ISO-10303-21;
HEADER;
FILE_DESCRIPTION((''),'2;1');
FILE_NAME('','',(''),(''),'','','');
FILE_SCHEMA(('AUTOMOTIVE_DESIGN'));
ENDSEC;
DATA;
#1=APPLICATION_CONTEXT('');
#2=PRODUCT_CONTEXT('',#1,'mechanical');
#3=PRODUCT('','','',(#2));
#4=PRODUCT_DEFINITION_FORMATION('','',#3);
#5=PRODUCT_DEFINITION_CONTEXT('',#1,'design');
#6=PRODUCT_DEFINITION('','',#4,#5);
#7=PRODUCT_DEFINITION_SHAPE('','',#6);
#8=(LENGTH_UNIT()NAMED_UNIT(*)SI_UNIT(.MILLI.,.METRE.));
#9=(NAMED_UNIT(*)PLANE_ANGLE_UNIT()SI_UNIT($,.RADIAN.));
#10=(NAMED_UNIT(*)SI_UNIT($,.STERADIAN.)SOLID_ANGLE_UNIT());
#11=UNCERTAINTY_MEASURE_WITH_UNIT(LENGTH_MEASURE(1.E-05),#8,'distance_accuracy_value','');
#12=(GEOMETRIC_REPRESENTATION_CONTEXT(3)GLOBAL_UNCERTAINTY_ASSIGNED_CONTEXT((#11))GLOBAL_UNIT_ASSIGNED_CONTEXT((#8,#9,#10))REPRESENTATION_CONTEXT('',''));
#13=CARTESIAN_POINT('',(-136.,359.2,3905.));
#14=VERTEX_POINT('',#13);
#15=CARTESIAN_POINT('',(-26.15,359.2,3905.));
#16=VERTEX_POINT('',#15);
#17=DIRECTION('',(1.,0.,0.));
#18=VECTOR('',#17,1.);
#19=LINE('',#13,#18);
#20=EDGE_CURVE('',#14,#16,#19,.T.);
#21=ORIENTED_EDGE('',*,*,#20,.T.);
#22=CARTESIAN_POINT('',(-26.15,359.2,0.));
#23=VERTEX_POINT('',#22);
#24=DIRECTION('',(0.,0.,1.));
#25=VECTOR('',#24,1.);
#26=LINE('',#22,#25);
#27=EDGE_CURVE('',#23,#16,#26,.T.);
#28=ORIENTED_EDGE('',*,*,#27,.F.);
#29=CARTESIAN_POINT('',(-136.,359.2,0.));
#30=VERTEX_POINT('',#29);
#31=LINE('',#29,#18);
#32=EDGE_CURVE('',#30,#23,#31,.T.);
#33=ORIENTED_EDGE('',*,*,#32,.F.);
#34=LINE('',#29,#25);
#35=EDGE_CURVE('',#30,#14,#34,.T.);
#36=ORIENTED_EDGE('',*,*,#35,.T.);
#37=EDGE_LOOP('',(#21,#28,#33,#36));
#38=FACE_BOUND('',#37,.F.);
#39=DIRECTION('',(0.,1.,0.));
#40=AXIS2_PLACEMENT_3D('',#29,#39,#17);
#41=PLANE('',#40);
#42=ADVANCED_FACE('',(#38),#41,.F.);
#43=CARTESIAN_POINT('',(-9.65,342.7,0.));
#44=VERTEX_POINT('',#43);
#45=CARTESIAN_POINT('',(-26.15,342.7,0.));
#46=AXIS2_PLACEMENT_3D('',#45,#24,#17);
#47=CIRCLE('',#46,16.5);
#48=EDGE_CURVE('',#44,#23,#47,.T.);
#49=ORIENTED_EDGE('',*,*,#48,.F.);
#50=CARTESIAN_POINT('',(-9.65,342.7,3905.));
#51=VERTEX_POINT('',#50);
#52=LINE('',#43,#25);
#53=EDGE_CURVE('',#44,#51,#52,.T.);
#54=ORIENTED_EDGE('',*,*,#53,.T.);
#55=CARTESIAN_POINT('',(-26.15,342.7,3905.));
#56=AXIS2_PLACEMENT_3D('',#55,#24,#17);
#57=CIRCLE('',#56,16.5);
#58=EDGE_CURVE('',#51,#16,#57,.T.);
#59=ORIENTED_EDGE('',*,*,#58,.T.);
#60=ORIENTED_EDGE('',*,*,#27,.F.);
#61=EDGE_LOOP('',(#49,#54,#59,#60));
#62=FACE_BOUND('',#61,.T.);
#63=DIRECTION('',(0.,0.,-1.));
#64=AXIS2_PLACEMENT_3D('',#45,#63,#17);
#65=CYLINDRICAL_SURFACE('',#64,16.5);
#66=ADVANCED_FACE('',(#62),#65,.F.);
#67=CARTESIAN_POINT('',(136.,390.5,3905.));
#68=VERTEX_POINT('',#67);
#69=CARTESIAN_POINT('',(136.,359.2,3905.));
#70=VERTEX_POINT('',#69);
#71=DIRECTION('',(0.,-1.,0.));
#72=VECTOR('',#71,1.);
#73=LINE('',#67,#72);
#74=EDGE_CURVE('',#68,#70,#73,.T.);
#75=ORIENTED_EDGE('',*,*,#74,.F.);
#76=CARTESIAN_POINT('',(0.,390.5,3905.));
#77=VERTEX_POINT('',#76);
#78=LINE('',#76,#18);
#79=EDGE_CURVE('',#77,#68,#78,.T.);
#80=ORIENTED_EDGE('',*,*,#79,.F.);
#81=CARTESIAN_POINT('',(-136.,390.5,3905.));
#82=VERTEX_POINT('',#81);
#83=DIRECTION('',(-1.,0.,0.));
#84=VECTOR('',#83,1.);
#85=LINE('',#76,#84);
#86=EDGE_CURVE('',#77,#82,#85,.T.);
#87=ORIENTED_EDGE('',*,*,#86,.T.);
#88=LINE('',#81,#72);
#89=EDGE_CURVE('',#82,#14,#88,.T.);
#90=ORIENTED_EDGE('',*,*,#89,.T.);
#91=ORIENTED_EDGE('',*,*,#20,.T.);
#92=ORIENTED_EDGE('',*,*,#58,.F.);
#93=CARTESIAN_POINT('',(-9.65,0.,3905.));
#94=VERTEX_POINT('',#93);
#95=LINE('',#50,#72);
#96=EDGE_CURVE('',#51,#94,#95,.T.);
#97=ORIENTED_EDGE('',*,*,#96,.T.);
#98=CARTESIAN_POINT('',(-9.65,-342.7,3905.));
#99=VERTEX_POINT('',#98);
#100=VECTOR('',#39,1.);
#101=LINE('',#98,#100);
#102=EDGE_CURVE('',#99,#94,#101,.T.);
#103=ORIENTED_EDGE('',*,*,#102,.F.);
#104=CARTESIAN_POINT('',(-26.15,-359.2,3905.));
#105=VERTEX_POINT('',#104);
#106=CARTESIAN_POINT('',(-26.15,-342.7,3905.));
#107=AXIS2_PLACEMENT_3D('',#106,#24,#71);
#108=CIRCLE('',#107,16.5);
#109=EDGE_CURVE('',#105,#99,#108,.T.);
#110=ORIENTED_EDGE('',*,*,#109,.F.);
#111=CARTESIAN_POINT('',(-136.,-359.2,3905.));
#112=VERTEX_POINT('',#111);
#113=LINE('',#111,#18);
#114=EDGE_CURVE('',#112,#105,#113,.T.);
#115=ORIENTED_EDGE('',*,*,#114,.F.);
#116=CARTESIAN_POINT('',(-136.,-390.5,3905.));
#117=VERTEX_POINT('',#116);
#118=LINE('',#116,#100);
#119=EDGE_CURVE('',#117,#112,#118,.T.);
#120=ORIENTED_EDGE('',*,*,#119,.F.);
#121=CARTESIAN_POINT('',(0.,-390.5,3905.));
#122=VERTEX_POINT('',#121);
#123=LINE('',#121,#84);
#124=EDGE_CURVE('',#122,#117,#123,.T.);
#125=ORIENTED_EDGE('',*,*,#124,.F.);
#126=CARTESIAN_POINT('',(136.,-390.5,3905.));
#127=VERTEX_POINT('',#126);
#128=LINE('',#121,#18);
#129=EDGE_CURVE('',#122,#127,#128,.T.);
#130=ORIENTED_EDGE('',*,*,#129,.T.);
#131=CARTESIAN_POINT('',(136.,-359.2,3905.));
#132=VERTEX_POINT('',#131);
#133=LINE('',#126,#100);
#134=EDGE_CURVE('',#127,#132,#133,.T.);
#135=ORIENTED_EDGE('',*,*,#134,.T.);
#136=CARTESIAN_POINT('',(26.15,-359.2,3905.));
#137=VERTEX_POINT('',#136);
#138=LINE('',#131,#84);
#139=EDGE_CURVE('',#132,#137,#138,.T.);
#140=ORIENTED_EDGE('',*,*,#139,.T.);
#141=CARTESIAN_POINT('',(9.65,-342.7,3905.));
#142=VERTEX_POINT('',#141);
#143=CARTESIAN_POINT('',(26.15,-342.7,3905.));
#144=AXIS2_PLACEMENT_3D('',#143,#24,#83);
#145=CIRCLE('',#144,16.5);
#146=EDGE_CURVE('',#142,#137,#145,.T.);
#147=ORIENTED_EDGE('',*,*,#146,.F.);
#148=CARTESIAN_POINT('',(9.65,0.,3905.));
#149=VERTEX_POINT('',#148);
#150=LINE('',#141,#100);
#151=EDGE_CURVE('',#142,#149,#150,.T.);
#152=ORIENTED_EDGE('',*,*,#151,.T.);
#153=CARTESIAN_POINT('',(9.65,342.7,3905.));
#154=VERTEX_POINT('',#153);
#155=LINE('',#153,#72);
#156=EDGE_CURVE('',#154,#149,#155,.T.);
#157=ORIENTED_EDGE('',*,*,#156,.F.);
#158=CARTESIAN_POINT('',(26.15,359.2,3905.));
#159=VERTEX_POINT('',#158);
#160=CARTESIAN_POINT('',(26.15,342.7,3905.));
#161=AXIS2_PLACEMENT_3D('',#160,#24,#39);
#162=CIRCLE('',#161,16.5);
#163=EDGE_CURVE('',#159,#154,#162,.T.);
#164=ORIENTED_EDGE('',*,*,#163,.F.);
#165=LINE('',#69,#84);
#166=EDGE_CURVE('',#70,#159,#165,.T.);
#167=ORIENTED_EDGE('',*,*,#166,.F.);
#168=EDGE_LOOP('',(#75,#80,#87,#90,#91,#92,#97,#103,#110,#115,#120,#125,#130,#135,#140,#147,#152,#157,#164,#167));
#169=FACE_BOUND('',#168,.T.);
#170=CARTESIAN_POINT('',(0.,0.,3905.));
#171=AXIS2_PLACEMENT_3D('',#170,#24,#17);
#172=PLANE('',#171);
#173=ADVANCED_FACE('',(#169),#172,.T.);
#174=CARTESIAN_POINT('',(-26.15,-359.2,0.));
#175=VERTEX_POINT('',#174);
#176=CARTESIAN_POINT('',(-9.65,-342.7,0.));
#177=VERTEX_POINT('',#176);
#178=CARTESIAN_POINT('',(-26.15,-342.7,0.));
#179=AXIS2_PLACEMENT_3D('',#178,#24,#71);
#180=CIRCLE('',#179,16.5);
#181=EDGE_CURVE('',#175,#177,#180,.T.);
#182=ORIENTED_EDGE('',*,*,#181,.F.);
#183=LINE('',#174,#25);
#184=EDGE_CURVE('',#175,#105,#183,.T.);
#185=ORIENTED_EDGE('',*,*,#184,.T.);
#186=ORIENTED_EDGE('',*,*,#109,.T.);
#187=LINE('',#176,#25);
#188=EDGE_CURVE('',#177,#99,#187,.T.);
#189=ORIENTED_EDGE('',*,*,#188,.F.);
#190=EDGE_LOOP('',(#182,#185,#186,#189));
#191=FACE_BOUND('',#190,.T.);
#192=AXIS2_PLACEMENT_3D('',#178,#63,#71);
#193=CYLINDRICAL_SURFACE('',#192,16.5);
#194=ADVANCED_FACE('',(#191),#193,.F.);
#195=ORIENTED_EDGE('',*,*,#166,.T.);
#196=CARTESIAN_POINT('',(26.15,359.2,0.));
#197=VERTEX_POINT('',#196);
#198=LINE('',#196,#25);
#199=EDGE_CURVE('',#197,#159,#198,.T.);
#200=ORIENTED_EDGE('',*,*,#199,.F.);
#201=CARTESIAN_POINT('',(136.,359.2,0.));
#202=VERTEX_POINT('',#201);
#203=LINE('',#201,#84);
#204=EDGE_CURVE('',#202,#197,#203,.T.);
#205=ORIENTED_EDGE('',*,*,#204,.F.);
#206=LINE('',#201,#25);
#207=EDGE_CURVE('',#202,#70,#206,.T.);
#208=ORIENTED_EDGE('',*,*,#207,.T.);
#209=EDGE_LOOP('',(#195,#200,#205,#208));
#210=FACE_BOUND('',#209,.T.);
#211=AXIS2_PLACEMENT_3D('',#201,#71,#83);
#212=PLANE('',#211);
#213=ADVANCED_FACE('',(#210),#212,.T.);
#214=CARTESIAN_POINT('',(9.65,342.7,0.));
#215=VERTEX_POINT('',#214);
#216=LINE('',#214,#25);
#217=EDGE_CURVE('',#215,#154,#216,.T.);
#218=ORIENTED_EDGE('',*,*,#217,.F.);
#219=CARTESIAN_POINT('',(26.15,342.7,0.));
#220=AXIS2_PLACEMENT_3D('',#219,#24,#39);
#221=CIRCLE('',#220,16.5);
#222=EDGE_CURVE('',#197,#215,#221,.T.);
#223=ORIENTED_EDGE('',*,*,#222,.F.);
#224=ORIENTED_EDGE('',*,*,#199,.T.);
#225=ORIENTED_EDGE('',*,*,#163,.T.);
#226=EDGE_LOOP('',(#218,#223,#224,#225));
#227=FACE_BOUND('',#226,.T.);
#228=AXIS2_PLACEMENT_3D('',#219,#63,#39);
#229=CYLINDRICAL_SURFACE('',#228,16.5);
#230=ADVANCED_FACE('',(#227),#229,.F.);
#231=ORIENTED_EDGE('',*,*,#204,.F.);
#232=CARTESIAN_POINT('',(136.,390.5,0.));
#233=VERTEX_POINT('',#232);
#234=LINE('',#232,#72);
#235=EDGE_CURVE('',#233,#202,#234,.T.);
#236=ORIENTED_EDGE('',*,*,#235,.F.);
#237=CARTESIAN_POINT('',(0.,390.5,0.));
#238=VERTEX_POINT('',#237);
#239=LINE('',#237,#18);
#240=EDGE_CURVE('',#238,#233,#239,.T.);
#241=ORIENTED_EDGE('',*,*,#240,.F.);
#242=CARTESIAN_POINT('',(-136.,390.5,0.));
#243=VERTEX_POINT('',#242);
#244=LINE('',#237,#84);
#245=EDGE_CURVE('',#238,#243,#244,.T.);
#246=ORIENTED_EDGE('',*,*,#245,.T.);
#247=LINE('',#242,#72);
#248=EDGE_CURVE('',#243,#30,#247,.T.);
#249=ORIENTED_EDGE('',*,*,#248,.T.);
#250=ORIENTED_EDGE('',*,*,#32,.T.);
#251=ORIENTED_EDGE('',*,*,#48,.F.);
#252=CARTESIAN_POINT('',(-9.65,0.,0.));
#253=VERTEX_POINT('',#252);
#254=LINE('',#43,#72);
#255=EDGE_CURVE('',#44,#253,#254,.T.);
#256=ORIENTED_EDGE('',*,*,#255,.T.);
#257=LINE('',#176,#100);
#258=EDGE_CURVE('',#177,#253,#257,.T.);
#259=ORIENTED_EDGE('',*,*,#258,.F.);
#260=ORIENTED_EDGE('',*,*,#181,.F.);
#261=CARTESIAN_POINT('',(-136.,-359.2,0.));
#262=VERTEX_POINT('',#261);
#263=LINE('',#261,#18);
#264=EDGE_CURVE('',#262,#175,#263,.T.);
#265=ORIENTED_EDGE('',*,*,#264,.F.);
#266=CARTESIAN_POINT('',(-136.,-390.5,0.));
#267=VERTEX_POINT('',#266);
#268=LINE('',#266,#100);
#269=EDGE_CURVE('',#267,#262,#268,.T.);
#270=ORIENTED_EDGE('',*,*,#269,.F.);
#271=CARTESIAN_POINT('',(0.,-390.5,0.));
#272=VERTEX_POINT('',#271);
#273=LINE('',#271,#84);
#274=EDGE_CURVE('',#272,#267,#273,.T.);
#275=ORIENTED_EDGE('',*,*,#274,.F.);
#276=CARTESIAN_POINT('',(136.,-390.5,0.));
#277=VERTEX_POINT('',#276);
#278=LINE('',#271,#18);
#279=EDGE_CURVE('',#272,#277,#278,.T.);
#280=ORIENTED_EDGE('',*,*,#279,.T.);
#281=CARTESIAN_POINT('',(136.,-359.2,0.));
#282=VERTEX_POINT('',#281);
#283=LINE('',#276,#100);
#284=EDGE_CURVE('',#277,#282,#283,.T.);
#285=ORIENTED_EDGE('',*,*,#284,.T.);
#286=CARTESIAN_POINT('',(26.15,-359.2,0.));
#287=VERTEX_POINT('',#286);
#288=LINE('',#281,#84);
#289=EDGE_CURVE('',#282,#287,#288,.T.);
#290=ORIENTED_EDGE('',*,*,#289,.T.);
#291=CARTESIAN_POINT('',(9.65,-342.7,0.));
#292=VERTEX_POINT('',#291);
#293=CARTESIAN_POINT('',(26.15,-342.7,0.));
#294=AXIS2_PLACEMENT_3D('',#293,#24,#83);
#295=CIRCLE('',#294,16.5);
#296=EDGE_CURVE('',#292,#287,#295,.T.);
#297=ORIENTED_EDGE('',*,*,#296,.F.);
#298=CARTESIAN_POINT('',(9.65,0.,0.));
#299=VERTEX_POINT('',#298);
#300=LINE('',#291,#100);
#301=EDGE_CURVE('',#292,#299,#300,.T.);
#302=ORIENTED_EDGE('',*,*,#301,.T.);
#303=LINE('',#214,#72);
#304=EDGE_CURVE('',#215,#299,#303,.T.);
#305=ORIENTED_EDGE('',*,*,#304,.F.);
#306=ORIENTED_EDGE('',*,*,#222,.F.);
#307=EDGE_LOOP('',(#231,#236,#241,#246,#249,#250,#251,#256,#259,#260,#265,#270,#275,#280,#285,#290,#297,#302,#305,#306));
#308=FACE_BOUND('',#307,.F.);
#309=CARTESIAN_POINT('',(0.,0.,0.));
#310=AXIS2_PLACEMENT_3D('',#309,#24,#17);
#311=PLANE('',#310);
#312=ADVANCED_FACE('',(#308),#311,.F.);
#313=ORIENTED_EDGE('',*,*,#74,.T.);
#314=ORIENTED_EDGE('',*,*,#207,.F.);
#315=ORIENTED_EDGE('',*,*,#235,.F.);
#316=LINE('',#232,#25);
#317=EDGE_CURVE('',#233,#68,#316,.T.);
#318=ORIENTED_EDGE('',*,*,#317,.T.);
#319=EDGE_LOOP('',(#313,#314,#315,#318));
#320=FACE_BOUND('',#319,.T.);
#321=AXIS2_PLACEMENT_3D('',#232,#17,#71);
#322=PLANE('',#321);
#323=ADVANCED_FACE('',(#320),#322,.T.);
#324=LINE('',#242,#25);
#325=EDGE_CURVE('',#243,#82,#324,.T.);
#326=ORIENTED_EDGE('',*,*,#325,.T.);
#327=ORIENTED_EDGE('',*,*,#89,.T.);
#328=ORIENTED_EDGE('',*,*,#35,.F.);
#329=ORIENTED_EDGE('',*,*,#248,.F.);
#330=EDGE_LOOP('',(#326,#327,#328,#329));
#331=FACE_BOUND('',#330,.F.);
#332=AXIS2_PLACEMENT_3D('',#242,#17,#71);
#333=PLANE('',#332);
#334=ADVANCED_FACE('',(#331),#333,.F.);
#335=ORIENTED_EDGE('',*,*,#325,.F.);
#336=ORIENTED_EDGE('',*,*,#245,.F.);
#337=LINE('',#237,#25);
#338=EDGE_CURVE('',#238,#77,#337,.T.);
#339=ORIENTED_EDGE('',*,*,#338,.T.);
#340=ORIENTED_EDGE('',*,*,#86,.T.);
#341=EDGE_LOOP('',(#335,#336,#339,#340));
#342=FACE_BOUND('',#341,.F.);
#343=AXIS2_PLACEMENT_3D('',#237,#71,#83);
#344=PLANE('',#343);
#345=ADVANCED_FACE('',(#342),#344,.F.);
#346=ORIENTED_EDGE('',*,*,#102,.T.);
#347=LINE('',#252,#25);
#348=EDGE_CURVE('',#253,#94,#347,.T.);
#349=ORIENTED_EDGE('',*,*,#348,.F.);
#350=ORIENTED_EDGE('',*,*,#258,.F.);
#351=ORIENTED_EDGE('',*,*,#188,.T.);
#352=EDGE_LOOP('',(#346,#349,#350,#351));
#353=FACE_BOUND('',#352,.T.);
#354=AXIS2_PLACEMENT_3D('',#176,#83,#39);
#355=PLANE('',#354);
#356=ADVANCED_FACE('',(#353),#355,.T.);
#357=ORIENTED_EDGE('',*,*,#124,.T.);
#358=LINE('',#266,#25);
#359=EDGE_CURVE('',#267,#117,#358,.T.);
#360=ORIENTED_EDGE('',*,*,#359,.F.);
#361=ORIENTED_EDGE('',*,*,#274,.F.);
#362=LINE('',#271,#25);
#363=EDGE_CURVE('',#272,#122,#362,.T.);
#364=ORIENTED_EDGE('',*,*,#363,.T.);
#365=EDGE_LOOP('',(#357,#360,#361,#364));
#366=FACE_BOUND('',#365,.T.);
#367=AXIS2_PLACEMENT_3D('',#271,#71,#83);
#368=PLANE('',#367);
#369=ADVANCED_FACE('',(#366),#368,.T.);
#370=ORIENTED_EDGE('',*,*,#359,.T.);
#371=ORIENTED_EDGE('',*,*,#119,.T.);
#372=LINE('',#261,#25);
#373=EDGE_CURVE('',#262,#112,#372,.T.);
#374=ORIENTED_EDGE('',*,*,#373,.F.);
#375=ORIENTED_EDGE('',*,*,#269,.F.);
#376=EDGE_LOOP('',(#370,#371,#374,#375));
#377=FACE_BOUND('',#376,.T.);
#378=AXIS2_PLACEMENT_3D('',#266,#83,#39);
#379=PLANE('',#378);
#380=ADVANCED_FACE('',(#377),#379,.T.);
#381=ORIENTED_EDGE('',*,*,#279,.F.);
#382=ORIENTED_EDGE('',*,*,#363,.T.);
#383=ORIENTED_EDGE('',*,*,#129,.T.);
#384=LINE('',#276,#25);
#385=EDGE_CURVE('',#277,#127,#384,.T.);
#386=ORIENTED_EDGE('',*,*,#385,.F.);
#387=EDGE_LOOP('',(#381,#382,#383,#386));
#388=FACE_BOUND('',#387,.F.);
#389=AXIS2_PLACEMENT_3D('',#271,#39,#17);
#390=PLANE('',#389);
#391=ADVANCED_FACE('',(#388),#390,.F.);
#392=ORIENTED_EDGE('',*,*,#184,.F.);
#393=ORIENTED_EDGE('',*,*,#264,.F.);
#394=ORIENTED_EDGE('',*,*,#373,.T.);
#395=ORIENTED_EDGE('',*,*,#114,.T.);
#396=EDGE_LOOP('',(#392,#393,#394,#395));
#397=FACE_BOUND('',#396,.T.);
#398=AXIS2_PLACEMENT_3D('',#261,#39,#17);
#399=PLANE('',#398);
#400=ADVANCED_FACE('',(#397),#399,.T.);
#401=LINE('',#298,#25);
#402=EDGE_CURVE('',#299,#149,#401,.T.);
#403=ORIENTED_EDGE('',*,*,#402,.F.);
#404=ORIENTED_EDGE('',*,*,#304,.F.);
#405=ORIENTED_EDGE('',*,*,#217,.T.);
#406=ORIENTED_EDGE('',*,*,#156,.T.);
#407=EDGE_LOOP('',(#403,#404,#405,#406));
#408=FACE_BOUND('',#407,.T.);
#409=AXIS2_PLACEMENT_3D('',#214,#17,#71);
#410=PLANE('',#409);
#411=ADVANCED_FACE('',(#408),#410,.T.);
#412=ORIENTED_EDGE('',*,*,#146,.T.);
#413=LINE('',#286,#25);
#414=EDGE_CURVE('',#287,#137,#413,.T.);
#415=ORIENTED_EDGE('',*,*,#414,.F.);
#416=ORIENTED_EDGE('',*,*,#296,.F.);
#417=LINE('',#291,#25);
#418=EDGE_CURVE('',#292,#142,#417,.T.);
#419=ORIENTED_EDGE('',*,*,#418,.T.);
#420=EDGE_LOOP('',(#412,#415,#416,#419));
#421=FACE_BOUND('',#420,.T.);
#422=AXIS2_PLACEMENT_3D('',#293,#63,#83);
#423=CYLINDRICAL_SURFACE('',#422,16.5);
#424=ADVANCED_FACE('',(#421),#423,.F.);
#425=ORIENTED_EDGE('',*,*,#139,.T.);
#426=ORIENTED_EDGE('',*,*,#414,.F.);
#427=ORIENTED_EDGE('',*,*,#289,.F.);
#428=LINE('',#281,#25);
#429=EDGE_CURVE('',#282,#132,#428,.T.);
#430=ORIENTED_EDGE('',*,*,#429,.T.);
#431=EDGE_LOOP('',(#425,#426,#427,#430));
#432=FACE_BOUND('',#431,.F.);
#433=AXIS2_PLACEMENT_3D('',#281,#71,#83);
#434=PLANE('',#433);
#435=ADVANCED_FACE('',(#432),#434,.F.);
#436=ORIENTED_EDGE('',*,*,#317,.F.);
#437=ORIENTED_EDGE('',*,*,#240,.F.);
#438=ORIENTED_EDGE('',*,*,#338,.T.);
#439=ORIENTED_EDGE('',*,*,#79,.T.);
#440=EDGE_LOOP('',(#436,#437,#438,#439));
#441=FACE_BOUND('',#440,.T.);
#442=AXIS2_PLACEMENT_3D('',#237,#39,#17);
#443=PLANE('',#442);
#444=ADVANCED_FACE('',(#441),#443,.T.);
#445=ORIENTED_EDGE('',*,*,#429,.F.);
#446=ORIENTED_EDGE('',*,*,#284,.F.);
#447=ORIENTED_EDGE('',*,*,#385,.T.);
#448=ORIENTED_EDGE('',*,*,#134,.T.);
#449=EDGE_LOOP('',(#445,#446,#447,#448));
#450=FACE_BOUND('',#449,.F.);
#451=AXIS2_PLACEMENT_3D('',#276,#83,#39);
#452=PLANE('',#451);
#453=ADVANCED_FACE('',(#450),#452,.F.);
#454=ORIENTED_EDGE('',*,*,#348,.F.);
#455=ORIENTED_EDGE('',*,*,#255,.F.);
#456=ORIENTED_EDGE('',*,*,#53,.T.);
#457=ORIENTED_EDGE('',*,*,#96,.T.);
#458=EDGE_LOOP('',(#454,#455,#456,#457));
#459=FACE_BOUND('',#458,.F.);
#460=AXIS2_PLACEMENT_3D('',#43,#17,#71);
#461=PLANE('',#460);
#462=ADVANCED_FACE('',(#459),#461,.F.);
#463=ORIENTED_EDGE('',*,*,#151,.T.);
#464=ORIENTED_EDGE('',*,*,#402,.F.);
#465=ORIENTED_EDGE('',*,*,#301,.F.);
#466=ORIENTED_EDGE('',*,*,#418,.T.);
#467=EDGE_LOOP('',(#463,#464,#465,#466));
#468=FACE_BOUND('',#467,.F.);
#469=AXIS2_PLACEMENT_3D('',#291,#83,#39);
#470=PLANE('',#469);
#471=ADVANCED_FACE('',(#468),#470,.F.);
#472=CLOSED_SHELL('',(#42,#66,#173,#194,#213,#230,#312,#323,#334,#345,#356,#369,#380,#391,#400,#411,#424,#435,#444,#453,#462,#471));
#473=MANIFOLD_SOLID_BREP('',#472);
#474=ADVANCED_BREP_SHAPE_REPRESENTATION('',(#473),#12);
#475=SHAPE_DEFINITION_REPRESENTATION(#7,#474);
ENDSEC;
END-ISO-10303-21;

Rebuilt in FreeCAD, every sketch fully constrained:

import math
import FreeCAD as App
import Part
import Sketcher

V = App.Vector
Q = App.Units.Quantity

doc = App.newDocument("Part")
params = doc.addObject("Spreadsheet::Sheet", "Params")
for row, (alias, value) in enumerate([
    ("sketch1_radius", "16.5 mm"),
    ("sketch1_height", "31.3 mm"),
    ("pad1_length", "3905 mm"),
], start=1):
    params.set(f"A{row}", alias)
    params.set(f"B{row}", "=" + value)
    params.setAlias(f"B{row}", alias)

body = doc.addObject("PartDesign::Body", "Body")

# Sketch on XY plane
sketch1 = body.newObject("Sketcher::SketchObject", "Sketch")
sketch1.AttachmentSupport = (doc.getObject("XY_Plane"), [""])
sketch1.MapMode = "FlatFace"
sketch1.addGeometry([
    Part.LineSegment(V(-136, -359, 0), V(-136, -390, 0)),  # 0
    Part.LineSegment(V(-136, -390, 0), V(136, -390, 0)),  # 1
    Part.LineSegment(V(136, -390, 0), V(136, -359, 0)),  # 2
    Part.LineSegment(V(136, -359, 0), V(26, -359, 0)),  # 3
    Part.ArcOfCircle(Part.Circle(V(26, -343, 0), V(0, 0, 1), 16), math.radians(180), math.radians(270)),  # 4
    Part.LineSegment(V(10, -343, 0), V(10, 343, 0)),  # 5
    Part.ArcOfCircle(Part.Circle(V(26, 343, 0), V(0, 0, 1), 16), math.radians(90), math.radians(180)),  # 6
    Part.LineSegment(V(26, 359, 0), V(136, 359, 0)),  # 7
    Part.LineSegment(V(136, 359, 0), V(136, 390, 0)),  # 8
    Part.LineSegment(V(136, 390, 0), V(-136, 390, 0)),  # 9
    Part.LineSegment(V(-136, 390, 0), V(-136, 359, 0)),  # 10
    Part.LineSegment(V(-136, 359, 0), V(-26, 359, 0)),  # 11
    Part.ArcOfCircle(Part.Circle(V(-26, 343, 0), V(0, 0, 1), 16), math.radians(0), math.radians(90)),  # 12
    Part.LineSegment(V(-10, 343, 0), V(-10, -343, 0)),  # 13
    Part.ArcOfCircle(Part.Circle(V(-26, -343, 0), V(0, 0, 1), 16), math.radians(-90), math.radians(0)),  # 14
    Part.LineSegment(V(-26, -359, 0), V(-136, -359, 0)),  # 15
], False)
sketch1.addConstraint([
    Sketcher.Constraint("Coincident", 0, 2, 1, 1),
    Sketcher.Constraint("Coincident", 1, 2, 2, 1),
    Sketcher.Constraint("Coincident", 2, 2, 3, 1),
    Sketcher.Constraint("Tangent", 3, 2, 4, 2),
    Sketcher.Constraint("Tangent", 4, 1, 5, 1),
    Sketcher.Constraint("Tangent", 5, 2, 6, 2),
    Sketcher.Constraint("Tangent", 6, 1, 7, 1),
    Sketcher.Constraint("Coincident", 7, 2, 8, 1),
    Sketcher.Constraint("Coincident", 8, 2, 9, 1),
    Sketcher.Constraint("Coincident", 9, 2, 10, 1),
    Sketcher.Constraint("Coincident", 10, 2, 11, 1),
    Sketcher.Constraint("Tangent", 11, 2, 12, 2),
    Sketcher.Constraint("Tangent", 12, 1, 13, 1),
    Sketcher.Constraint("Tangent", 13, 2, 14, 2),
    Sketcher.Constraint("Tangent", 14, 1, 15, 1),
    Sketcher.Constraint("Coincident", 15, 2, 0, 1),
    Sketcher.Constraint("Vertical", 0),
    Sketcher.Constraint("Horizontal", 1),
    Sketcher.Constraint("Vertical", 2),
    Sketcher.Constraint("Horizontal", 3),
    Sketcher.Constraint("Vertical", 5),
    Sketcher.Constraint("Horizontal", 7),
    Sketcher.Constraint("Vertical", 8),
    Sketcher.Constraint("Horizontal", 9),
    Sketcher.Constraint("Vertical", 10),
    Sketcher.Constraint("Horizontal", 11),
    Sketcher.Constraint("Vertical", 13),
    Sketcher.Constraint("Horizontal", 15),
    Sketcher.Constraint("Equal", 4, 6),
    Sketcher.Constraint("Equal", 6, 12),
    Sketcher.Constraint("Equal", 12, 14),
    Sketcher.Constraint("Symmetric", 4, 3, 12, 3, -1, 1),
    Sketcher.Constraint("Symmetric", 0, 2, 8, 2, -1, 1),
    Sketcher.Constraint("Symmetric", 7, 2, 10, 2, -2),
    Sketcher.Constraint("Symmetric", 2, 2, 15, 2, -2),
    Sketcher.Constraint("Radius", 4, Q("16.5 mm")),
    Sketcher.Constraint("DistanceY", 0, 2, 0, 1, Q("31.3 mm")),
    Sketcher.Constraint("DistanceX", 0, 2, -1, 1, Q("136 mm")),
    Sketcher.Constraint("DistanceY", 0, 2, -1, 1, Q("390.5 mm")),
    Sketcher.Constraint("DistanceX", -1, 1, 4, 1, Q("9.65 mm")),
])
sketch1.setExpression("Constraints[35]", "Params.sketch1_radius")
sketch1.setExpression("Constraints[36]", "Params.sketch1_height")
pad1 = body.newObject("PartDesign::Pad", "Pad")
pad1.Profile = sketch1
pad1.setExpression("Length", "Params.pad1_length")

doc.recompute()
